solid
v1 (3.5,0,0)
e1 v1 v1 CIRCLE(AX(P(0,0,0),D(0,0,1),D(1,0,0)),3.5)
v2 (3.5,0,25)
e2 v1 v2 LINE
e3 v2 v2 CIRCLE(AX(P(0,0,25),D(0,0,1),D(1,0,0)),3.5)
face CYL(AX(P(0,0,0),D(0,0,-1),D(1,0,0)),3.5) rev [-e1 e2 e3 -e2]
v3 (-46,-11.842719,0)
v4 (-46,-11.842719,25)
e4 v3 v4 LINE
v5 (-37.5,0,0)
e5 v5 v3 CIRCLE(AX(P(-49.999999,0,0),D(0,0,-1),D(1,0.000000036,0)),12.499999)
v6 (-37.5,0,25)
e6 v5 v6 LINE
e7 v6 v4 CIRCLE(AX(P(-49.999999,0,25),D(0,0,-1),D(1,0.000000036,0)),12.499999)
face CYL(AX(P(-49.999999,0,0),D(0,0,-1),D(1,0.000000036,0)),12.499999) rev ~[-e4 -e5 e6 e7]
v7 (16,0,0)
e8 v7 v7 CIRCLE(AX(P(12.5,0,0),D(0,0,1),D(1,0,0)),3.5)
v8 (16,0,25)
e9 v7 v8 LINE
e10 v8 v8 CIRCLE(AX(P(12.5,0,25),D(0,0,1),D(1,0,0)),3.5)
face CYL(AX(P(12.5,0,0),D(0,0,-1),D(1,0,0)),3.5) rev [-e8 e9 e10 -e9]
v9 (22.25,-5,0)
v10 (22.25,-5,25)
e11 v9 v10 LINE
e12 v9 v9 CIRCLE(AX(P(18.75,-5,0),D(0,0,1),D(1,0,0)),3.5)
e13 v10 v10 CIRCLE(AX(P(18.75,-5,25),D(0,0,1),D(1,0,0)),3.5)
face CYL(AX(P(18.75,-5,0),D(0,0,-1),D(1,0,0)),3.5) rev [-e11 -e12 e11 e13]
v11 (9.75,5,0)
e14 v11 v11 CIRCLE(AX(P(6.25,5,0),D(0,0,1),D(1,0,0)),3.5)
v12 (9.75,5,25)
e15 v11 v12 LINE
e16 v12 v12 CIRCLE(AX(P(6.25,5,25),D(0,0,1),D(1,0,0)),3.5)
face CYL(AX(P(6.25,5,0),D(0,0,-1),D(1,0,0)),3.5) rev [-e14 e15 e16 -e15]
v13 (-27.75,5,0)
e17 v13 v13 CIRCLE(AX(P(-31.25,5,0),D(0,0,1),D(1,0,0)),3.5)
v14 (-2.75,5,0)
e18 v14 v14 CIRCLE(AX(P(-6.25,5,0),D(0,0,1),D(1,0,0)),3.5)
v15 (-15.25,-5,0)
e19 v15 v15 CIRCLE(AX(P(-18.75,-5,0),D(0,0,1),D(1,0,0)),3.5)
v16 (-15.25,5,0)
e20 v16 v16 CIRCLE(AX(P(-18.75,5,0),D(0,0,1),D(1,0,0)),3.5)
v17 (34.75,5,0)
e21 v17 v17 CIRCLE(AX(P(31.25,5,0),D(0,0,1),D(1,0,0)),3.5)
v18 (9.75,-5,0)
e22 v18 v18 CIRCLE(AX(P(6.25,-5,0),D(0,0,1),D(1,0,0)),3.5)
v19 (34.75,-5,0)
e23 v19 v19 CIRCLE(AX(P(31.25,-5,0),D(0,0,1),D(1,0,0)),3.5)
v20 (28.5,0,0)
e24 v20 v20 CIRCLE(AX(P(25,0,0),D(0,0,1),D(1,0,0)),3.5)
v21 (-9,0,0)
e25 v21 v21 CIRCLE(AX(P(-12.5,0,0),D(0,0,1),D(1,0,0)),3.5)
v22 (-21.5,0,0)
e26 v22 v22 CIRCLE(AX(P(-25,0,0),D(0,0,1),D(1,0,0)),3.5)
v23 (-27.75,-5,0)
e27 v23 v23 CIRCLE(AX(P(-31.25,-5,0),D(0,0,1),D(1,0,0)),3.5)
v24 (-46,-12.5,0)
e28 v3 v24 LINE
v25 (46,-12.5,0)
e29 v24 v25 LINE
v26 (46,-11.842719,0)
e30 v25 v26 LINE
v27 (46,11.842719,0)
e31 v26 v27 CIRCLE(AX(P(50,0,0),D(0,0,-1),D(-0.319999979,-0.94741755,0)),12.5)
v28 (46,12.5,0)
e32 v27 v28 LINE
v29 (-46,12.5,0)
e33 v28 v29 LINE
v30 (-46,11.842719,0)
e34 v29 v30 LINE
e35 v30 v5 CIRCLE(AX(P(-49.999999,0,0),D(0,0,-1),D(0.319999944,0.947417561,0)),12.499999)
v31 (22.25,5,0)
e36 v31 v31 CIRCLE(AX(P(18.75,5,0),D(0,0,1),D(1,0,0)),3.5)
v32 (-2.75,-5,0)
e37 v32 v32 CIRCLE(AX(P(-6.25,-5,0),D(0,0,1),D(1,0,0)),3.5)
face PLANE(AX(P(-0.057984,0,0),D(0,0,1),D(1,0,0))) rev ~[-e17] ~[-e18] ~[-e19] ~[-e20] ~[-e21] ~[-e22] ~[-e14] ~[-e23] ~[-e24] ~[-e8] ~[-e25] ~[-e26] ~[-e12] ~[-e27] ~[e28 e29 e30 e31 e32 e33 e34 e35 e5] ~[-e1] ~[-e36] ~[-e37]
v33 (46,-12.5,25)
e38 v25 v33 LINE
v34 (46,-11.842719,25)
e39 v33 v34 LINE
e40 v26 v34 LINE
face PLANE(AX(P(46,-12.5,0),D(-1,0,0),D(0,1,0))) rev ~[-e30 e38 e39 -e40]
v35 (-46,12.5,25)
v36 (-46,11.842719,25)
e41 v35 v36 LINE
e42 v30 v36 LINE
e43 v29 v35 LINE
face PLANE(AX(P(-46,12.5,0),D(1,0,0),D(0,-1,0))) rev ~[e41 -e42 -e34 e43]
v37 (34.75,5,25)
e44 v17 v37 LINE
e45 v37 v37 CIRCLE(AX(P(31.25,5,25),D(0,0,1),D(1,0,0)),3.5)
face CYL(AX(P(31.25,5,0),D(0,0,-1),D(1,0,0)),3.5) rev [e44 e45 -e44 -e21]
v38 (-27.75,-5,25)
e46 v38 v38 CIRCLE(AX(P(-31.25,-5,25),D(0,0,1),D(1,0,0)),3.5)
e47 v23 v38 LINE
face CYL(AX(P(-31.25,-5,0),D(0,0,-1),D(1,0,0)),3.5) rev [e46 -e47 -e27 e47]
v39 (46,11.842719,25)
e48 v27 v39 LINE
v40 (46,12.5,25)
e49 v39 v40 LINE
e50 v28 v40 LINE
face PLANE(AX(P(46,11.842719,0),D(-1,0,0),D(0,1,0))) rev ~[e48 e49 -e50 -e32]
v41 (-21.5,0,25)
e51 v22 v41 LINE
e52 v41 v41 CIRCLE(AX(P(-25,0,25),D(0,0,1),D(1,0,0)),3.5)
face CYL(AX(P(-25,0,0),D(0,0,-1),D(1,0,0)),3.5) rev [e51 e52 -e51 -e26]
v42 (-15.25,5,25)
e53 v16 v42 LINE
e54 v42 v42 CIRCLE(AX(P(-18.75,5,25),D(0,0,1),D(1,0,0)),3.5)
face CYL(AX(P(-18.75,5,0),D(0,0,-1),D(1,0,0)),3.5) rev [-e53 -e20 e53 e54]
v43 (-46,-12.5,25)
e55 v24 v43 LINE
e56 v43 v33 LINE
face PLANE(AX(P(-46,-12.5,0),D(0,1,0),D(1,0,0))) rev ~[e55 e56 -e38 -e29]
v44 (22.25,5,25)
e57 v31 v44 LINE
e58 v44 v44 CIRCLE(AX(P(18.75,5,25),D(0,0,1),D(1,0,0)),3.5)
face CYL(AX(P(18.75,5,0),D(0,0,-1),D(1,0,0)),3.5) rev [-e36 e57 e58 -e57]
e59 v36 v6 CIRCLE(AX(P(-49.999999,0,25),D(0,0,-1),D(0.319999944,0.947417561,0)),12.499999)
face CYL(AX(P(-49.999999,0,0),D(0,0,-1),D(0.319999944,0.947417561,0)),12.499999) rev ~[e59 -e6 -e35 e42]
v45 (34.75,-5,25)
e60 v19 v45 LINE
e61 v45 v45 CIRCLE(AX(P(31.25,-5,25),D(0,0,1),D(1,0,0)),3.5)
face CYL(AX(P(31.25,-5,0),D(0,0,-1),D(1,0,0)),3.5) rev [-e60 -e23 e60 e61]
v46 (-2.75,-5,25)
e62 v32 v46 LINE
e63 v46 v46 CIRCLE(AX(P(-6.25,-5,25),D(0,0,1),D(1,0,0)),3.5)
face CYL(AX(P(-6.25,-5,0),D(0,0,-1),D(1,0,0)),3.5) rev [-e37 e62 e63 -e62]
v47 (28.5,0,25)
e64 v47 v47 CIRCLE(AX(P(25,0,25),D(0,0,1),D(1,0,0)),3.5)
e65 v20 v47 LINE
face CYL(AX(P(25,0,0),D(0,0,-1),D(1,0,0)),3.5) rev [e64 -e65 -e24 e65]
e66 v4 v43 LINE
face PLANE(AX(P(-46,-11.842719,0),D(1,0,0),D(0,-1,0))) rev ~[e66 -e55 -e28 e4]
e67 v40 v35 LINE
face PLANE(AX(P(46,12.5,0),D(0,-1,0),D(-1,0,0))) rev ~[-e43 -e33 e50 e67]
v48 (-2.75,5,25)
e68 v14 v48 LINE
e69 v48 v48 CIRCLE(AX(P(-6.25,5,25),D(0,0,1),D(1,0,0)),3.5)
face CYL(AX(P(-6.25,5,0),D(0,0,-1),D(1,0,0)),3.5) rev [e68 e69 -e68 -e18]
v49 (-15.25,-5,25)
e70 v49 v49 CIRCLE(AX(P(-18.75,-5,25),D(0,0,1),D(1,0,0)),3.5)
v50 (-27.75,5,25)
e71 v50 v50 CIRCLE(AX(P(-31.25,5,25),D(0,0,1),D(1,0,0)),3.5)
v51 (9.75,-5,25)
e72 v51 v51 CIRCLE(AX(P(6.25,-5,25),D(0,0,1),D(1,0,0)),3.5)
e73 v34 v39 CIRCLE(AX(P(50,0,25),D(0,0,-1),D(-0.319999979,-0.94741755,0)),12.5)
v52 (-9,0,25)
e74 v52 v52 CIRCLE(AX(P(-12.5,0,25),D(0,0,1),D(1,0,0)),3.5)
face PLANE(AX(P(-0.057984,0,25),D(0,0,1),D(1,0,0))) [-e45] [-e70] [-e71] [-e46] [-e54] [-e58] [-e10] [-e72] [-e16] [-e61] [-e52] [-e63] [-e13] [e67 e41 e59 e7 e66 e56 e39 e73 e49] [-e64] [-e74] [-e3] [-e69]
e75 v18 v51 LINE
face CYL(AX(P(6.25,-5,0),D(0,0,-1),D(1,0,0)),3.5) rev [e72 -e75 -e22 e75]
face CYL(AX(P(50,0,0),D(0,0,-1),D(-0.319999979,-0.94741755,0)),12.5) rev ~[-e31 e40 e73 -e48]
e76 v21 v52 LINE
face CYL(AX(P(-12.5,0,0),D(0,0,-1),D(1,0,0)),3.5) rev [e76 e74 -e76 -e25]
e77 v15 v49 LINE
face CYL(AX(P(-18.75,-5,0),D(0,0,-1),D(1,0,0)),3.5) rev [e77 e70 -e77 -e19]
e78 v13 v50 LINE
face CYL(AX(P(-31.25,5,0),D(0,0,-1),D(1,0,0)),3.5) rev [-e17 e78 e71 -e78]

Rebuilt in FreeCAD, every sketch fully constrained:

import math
import FreeCAD as App
import Part
import Sketcher

V = App.Vector
Q = App.Units.Quantity

doc = App.newDocument("Part")
body = doc.addObject("PartDesign::Body", "Body")

sketch1 = body.newObject("Sketcher::SketchObject", "Sketch")
sketch1.AttachmentSupport = (doc.getObject("XY_Plane"), [""])
sketch1.MapMode = "FlatFace"
sketch1.addGeometry(Part.LineSegment(V(46, 11.8, 0), V(46, 12.5, 0)), False)
sketch1.addGeometry(Part.LineSegment(V(46, 12.5, 0), V(-46, 12.5, 0)), False)
sketch1.addGeometry(Part.LineSegment(V(-46, 12.5, 0), V(-46, 11.8, 0)), False)
sketch1.addGeometry(Part.ArcOfCircle(Part.Circle(V(-50, 0, 0), V(0, 0, 1), 12.5), math.radians(0), math.radians(71)), False)
sketch1.addGeometry(Part.ArcOfCircle(Part.Circle(V(-50, 0, 0), V(0, 0, 1), 12.5), math.radians(-71), math.radians(0)), False)
sketch1.addGeometry(Part.LineSegment(V(-46, -11.8, 0), V(-46, -12.5, 0)), False)
sketch1.addGeometry(Part.LineSegment(V(-46, -12.5, 0), V(46, -12.5, 0)), False)
sketch1.addGeometry(Part.LineSegment(V(46, -12.5, 0), V(46, -11.8, 0)), False)
sketch1.addGeometry(Part.ArcOfCircle(Part.Circle(V(50, 0, 0), V(0, 0, 1), 12.5), math.radians(109), math.radians(251)), False)
sketch1.addGeometry(Part.Circle(V(-31.2, -5, 0), V(0, 0, 1), 3.5), False)
sketch1.addGeometry(Part.Circle(V(-18.8, -5, 0), V(0, 0, 1), 3.5), False)
sketch1.addGeometry(Part.Circle(V(-6.2, -5, 0), V(0, 0, 1), 3.5), False)
sketch1.addGeometry(Part.Circle(V(6.2, -5, 0), V(0, 0, 1), 3.5), False)
sketch1.addGeometry(Part.Circle(V(18.8, -5, 0), V(0, 0, 1), 3.5), False)
sketch1.addGeometry(Part.Circle(V(31.2, -5, 0), V(0, 0, 1), 3.5), False)
sketch1.addGeometry(Part.Circle(V(-25, 0, 0), V(0, 0, 1), 3.5), False)
sketch1.addGeometry(Part.Circle(V(-12.5, 0, 0), V(0, 0, 1), 3.5), False)
sketch1.addGeometry(Part.Circle(V(-31.2, 5, 0), V(0, 0, 1), 3.5), False)
sketch1.addGeometry(Part.Circle(V(-18.8, 5, 0), V(0, 0, 1), 3.5), False)
sketch1.addGeometry(Part.Circle(V(-6.2, 5, 0), V(0, 0, 1), 3.5), False)
sketch1.addGeometry(Part.Circle(V(0, 0, 0), V(0, 0, 1), 3.5), False)
sketch1.addGeometry(Part.Circle(V(12.5, 0, 0), V(0, 0, 1), 3.5), False)
sketch1.addGeometry(Part.Circle(V(25, 0, 0), V(0, 0, 1), 3.5), False)
sketch1.addGeometry(Part.Circle(V(6.2, 5, 0), V(0, 0, 1), 3.5), False)
sketch1.addGeometry(Part.Circle(V(18.8, 5, 0), V(0, 0, 1), 3.5), False)
sketch1.addGeometry(Part.Circle(V(31.2, 5, 0), V(0, 0, 1), 3.5), False)
sketch1.addConstraint(Sketcher.Constraint("Coincident", 0, 2, 1, 1))
sketch1.addConstraint(Sketcher.Constraint("Coincident", 1, 2, 2, 1))
sketch1.addConstraint(Sketcher.Constraint("Coincident", 2, 2, 3, 2))
sketch1.addConstraint(Sketcher.Constraint("Tangent", 3, 1, 4, 2))
sketch1.addConstraint(Sketcher.Constraint("Coincident", 4, 1, 5, 1))
sketch1.addConstraint(Sketcher.Constraint("Coincident", 5, 2, 6, 1))
sketch1.addConstraint(Sketcher.Constraint("Coincident", 6, 2, 7, 1))
sketch1.addConstraint(Sketcher.Constraint("Coincident", 7, 2, 8, 2))
sketch1.addConstraint(Sketcher.Constraint("Coincident", 8, 1, 0, 1))
sketch1.addConstraint(Sketcher.Constraint("Vertical", 0))
sketch1.addConstraint(Sketcher.Constraint("Horizontal", 1))
sketch1.addConstraint(Sketcher.Constraint("Vertical", 2))
sketch1.addConstraint(Sketcher.Constraint("Vertical", 5))
sketch1.addConstraint(Sketcher.Constraint("Horizontal", 6))
sketch1.addConstraint(Sketcher.Constraint("Vertical", 7))
sketch1.addConstraint(Sketcher.Constraint("Coincident", 20, 3, -1, 1))
sketch1.addConstraint(Sketcher.Constraint("Equal", 3, 4))
sketch1.addConstraint(Sketcher.Constraint("Equal", 4, 8))
sketch1.addConstraint(Sketcher.Constraint("Equal", 9, 10))
sketch1.addConstraint(Sketcher.Constraint("Equal", 10, 11))
sketch1.addConstraint(Sketcher.Constraint("Equal", 11, 12))
sketch1.addConstraint(Sketcher.Constraint("Equal", 12, 13))
sketch1.addConstraint(Sketcher.Constraint("Equal", 13, 14))
sketch1.addConstraint(Sketcher.Constraint("Equal", 14, 15))
sketch1.addConstraint(Sketcher.Constraint("Equal", 15, 16))
sketch1.addConstraint(Sketcher.Constraint("Equal", 16, 17))
sketch1.addConstraint(Sketcher.Constraint("Equal", 17, 18))
sketch1.addConstraint(Sketcher.Constraint("Equal", 18, 19))
sketch1.addConstraint(Sketcher.Constraint("Equal", 19, 20))
sketch1.addConstraint(Sketcher.Constraint("Equal", 20, 21))
sketch1.addConstraint(Sketcher.Constraint("Equal", 21, 22))
sketch1.addConstraint(Sketcher.Constraint("Equal", 22, 23))
sketch1.addConstraint(Sketcher.Constraint("Equal", 23, 24))
sketch1.addConstraint(Sketcher.Constraint("Equal", 24, 25))
sketch1.addConstraint(Sketcher.Constraint("Symmetric", 3, 3, 8, 3, -1, 1))
sketch1.addConstraint(Sketcher.Constraint("Symmetric", 14, 3, 17, 3, -1, 1))
sketch1.addConstraint(Sketcher.Constraint("Symmetric", 13, 3, 18, 3, -1, 1))
sketch1.addConstraint(Sketcher.Constraint("Symmetric", 12, 3, 19, 3, -1, 1))
sketch1.addConstraint(Sketcher.Constraint("Symmetric", 16, 3, 21, 3, -1, 1))
sketch1.addConstraint(Sketcher.Constraint("Symmetric", 15, 3, 22, 3, -1, 1))
sketch1.addConstraint(Sketcher.Constraint("Symmetric", 11, 3, 23, 3, -1, 1))
sketch1.addConstraint(Sketcher.Constraint("Symmetric", 10, 3, 24, 3, -1, 1))
sketch1.addConstraint(Sketcher.Constraint("Symmetric", 9, 3, 25, 3, -1, 1))
sketch1.addConstraint(Sketcher.Constraint("Symmetric", 0, 2, 5, 2, -1, 1))
sketch1.addConstraint(Sketcher.Constraint("Symmetric", 11, 3, 12, 3, -2))
sketch1.addConstraint(Sketcher.Constraint("Symmetric", 10, 3, 13, 3, -2))
sketch1.addConstraint(Sketcher.Constraint("Symmetric", 9, 3, 14, 3, -2))
sketch1.addConstraint(Sketcher.Constraint("Symmetric", 4, 1, 7, 2, -2))
sketch1.addConstraint(Sketcher.Constraint("PointOnObject", 15, 3, -1))
sketch1.addConstraint(Sketcher.Constraint("PointOnObject", 16, 3, -1))
sketch1.addConstraint(Sketcher.Constraint("PointOnObject", 3, 1, -1))
sketch1.addConstraint(Sketcher.Constraint("Horizontal", 9, 3, 10, 3))
sketch1.addConstraint(Sketcher.Constraint("Horizontal", 10, 3, 11, 3))
sketch1.addConstraint(Sketcher.Constraint("Horizontal", 2, 2, 8, 1))
sketch1.addConstraint(Sketcher.Constraint("Diameter", 9, Q("7 mm")))
sketch1.addConstraint(Sketcher.Constraint("Radius", 3, Q("12.499999 mm")))
sketch1.addConstraint(Sketcher.Constraint("DistanceX", 1, 2, 1, 1, Q("92 mm")))
sketch1.addConstraint(Sketcher.Constraint("DistanceX", 3, 3, -1, 1, Q("49.999999 mm")))
sketch1.addConstraint(Sketcher.Constraint("DistanceY", 9, 3, -1, 1, Q("5 mm")))
sketch1.addConstraint(Sketcher.Constraint("DistanceX", 15, 3, -1, 1, Q("25 mm")))
sketch1.addConstraint(Sketcher.Constraint("DistanceX", 9, 3, 11, 3, Q("25 mm")))
sketch1.addConstraint(Sketcher.Constraint("DistanceX", 10, 3, 12, 3, Q("25 mm")))
sketch1.addConstraint(Sketcher.Constraint("DistanceY", 6, 2, 0, 2, Q("25 mm")))
sketch1.addConstraint(Sketcher.Constraint("DistanceX", 16, 3, -1, 1, Q("12.5 mm")))
sketch1.addConstraint(Sketcher.Constraint("DistanceX", 9, 3, 10, 3, Q("12.5 mm")))
pad1 = body.newObject("PartDesign::Pad", "Pad")
pad1.Profile = sketch1
pad1.Length = 25

doc.recompute()
